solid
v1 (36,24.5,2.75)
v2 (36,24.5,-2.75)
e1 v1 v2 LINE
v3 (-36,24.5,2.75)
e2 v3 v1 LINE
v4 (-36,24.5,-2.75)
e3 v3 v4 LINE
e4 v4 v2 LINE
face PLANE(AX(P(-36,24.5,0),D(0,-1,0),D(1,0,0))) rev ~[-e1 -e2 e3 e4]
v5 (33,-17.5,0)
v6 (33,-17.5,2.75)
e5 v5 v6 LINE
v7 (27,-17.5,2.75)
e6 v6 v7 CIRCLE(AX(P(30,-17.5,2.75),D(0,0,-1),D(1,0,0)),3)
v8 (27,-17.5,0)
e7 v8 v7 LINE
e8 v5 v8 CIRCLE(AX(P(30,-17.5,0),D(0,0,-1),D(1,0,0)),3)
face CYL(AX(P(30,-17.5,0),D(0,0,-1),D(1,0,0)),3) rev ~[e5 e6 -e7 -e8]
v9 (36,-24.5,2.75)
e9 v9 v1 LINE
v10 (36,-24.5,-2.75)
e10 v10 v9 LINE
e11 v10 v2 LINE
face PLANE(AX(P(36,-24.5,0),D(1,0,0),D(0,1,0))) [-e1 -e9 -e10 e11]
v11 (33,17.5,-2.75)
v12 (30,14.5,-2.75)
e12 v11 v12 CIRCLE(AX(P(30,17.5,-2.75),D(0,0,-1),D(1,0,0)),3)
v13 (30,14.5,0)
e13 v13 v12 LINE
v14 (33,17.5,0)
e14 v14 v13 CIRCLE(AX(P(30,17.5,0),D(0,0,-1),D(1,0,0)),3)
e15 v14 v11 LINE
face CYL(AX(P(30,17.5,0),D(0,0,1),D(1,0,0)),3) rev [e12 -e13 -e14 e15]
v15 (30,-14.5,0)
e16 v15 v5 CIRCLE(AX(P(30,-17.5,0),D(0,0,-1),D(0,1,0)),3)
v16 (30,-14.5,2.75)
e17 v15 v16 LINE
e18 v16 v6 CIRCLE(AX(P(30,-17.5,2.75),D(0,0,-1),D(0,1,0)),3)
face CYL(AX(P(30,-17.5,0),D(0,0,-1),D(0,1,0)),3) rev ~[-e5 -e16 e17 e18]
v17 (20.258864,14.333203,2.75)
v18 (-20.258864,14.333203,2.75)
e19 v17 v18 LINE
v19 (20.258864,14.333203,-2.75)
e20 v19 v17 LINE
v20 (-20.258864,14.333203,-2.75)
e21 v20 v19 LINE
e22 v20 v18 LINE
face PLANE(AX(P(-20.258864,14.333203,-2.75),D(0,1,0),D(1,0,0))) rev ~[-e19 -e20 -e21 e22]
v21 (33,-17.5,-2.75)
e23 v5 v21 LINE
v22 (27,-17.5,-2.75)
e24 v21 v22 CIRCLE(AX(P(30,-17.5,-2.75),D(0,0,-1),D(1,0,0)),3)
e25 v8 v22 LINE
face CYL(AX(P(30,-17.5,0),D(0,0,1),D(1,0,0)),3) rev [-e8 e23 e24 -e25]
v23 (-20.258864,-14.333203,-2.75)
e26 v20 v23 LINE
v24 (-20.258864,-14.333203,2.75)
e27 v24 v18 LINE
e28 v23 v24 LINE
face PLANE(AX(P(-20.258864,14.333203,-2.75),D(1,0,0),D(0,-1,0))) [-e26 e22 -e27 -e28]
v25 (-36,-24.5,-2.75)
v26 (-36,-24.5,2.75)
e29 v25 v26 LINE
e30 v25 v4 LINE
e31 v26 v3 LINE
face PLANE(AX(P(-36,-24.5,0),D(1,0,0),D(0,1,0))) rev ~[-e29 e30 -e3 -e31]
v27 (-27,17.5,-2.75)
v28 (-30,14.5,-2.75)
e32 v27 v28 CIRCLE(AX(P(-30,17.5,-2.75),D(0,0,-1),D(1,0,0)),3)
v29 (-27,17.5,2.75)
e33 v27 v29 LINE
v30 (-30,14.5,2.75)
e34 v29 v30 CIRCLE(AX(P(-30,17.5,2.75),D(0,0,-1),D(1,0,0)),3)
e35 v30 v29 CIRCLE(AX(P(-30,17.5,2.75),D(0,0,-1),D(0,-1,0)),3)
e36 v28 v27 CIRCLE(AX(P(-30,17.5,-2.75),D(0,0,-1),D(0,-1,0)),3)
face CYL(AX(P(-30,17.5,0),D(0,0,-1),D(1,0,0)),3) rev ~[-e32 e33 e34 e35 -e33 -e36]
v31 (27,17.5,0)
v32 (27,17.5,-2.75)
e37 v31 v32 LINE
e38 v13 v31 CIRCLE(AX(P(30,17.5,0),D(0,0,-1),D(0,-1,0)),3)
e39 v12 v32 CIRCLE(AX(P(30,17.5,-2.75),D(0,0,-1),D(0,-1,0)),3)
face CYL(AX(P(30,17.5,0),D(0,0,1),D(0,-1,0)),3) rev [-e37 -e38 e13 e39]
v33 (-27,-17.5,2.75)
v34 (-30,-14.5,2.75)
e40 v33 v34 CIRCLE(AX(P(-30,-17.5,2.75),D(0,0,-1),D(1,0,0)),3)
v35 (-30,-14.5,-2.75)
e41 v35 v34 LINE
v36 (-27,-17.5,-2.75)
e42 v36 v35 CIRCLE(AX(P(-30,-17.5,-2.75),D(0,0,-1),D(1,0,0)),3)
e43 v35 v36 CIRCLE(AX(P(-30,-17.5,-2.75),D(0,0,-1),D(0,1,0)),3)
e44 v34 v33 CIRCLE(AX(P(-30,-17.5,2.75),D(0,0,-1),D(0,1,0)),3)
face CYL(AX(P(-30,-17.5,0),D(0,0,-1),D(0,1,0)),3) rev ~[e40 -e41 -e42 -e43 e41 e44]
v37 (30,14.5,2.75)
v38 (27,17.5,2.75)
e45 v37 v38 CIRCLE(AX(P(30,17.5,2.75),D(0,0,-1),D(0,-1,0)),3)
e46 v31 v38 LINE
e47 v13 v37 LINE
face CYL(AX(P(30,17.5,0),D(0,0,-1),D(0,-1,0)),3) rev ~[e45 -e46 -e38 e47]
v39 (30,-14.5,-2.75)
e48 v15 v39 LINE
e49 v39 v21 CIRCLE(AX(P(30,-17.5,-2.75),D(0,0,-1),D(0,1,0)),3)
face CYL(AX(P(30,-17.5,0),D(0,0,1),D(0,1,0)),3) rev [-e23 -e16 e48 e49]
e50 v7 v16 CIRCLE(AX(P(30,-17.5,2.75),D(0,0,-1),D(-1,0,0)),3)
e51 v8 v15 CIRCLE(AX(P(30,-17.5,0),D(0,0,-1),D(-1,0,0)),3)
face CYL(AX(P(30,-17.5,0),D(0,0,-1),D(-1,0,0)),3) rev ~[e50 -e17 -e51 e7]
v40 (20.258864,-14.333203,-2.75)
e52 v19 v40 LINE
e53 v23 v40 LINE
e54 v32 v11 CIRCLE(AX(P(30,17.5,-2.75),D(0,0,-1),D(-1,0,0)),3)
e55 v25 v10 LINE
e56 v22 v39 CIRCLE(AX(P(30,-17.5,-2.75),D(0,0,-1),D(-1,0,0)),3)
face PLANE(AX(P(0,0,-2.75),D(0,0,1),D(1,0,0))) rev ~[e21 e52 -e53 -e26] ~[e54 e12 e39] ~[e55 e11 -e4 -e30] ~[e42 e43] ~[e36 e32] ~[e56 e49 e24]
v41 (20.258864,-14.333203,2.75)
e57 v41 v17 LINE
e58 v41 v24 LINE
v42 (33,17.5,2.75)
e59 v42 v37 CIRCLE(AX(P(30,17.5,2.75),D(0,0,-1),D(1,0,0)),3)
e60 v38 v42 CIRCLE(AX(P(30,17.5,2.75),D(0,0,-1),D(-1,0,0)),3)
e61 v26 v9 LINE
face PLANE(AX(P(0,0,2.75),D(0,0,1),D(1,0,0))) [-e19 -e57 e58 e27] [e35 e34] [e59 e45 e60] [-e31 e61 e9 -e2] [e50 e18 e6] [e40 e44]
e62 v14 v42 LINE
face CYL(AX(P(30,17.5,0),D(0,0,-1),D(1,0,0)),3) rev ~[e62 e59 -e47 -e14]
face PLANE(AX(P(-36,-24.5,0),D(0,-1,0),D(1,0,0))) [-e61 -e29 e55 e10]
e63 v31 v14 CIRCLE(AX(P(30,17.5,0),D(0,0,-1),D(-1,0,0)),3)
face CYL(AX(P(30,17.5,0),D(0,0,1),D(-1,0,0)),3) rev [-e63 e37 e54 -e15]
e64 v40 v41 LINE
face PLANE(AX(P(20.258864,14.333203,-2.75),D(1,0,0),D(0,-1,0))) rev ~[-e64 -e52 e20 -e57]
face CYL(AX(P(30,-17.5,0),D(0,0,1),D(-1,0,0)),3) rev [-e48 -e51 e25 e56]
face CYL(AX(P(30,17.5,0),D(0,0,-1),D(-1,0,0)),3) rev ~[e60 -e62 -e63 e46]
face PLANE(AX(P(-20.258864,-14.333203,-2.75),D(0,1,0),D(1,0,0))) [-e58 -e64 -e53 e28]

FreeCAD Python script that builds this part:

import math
import FreeCAD as App
import Part
import Sketcher
from FreeCAD import Vector
Q = App.Units.Quantity

doc = App.newDocument("Part")
body = doc.addObject("PartDesign::Body", "Body")

# Sketch on XY plane
sketch1 = doc.addObject("Sketcher::SketchObject", "Sketch")
body.addObject(sketch1)
sketch1.AttachmentSupport = (doc.XY_Plane, [""])
sketch1.MapMode = "FlatFace"
sketch1.addGeometry([
    Part.LineSegment(Vector(-36, 24.5, 0), Vector(-36, -24.5, 0)),  # 0
    Part.LineSegment(Vector(-36, -24.5, 0), Vector(36, -24.5, 0)),  # 1
    Part.LineSegment(Vector(36, -24.5, 0), Vector(36, 24.5, 0)),  # 2
    Part.LineSegment(Vector(36, 24.5, 0), Vector(-36, 24.5, 0)),  # 3
    Part.ArcOfCircle(Part.Circle(Vector(30, -17.5, 0), Vector(0, 0, 1), 3), math.radians(180), math.radians(360)),  # 4
    Part.ArcOfCircle(Part.Circle(Vector(30, -17.5, 0), Vector(0, 0, 1), 3), math.radians(90), math.radians(180)),  # 5
    Part.ArcOfCircle(Part.Circle(Vector(30, -17.5, 0), Vector(0, 0, 1), 3), math.radians(0), math.radians(90)),  # 6
    Part.ArcOfCircle(Part.Circle(Vector(30, 17.5, 0), Vector(0, 0, 1), 3), math.radians(-90), math.radians(0)),  # 7
    Part.ArcOfCircle(Part.Circle(Vector(30, 17.5, 0), Vector(0, 0, 1), 3), math.radians(180), math.radians(270)),  # 8
    Part.ArcOfCircle(Part.Circle(Vector(30, 17.5, 0), Vector(0, 0, 1), 3), math.radians(0), math.radians(180)),  # 9
    Part.ArcOfCircle(Part.Circle(Vector(-30, 17.5, 0), Vector(0, 0, 1), 3), math.radians(0), math.radians(270)),  # 10
    Part.ArcOfCircle(Part.Circle(Vector(-30, 17.5, 0), Vector(0, 0, 1), 3), math.radians(-90), math.radians(0)),  # 11
    Part.ArcOfCircle(Part.Circle(Vector(-30, -17.5, 0), Vector(0, 0, 1), 3), math.radians(90), math.radians(360)),  # 12
    Part.ArcOfCircle(Part.Circle(Vector(-30, -17.5, 0), Vector(0, 0, 1), 3), math.radians(0), math.radians(90)),  # 13
], False)
sketch1.addConstraint([
    Sketcher.Constraint("Coincident", 0, 2, 1, 1),
    Sketcher.Constraint("Coincident", 1, 2, 2, 1),
    Sketcher.Constraint("Coincident", 2, 2, 3, 1),
    Sketcher.Constraint("Coincident", 3, 2, 0, 1),
    Sketcher.Constraint("Tangent", 4, 1, 5, 2),
    Sketcher.Constraint("Tangent", 5, 1, 6, 2),
    Sketcher.Constraint("Tangent", 6, 1, 4, 2),
    Sketcher.Constraint("Tangent", 7, 1, 8, 2),
    Sketcher.Constraint("Tangent", 8, 1, 9, 2),
    Sketcher.Constraint("Tangent", 9, 1, 7, 2),
    Sketcher.Constraint("Tangent", 10, 1, 11, 2),
    Sketcher.Constraint("Coincident", 11, 1, 10, 2),
    Sketcher.Constraint("Tangent", 12, 1, 13, 2),
    Sketcher.Constraint("Coincident", 13, 1, 12, 2),
    Sketcher.Constraint("Vertical", 0),
    Sketcher.Constraint("Horizontal", 1),
    Sketcher.Constraint("Vertical", 2),
    Sketcher.Constraint("Horizontal", 3),
    Sketcher.Constraint("Equal", 6, 7),
    Sketcher.Constraint("Equal", 9, 10),
    Sketcher.Constraint("Equal", 11, 12),
    Sketcher.Constraint("Symmetric", 4, 3, 10, 3, -1, 1),
    Sketcher.Constraint("Symmetric", 7, 3, 12, 3, -1, 1),
    Sketcher.Constraint("Symmetric", 0, 2, 2, 2, -1, 1),
    Sketcher.Constraint("Symmetric", 7, 3, 10, 3, -2),
    Sketcher.Constraint("Horizontal", 13, 3, 4, 1),
    Sketcher.Constraint("Horizontal", 4, 1, 6, 1),
    Sketcher.Constraint("Horizontal", 11, 3, 8, 1),
    Sketcher.Constraint("Horizontal", 8, 1, 9, 1),
    Sketcher.Constraint("Horizontal", 9, 1, 10, 1),
    Sketcher.Constraint("Horizontal", 6, 1, 13, 1),
    Sketcher.Constraint("Vertical", 9, 3, 5, 1),
    Sketcher.Constraint("Vertical", 5, 1, 7, 1),
    Sketcher.Constraint("Vertical", 13, 3, 11, 1),
    Sketcher.Constraint("Vertical", 11, 1, 12, 1),
    Sketcher.Constraint("Radius", 4, Q("3 mm")),
    Sketcher.Constraint("DistanceX", 1, 1, 1, 2, Q("72 mm")),
    Sketcher.Constraint("DistanceY", 0, 2, 0, 1, Q("49 mm")),
    Sketcher.Constraint("DistanceX", -1, 1, 4, 3, Q("30 mm")),
    Sketcher.Constraint("DistanceY", 4, 3, 7, 3, Q("35 mm")),
])
pad1 = doc.addObject("PartDesign::Pad", "Pad")
body.addObject(pad1)
pad1.Profile = sketch1
pad1.Length = 5.5
pad1.Midplane = True

# Sketch on XY plane
sketch2 = doc.addObject("Sketcher::SketchObject", "Sketch001")
body.addObject(sketch2)
sketch2.AttachmentSupport = (doc.XY_Plane, [""])
sketch2.MapMode = "FlatFace"
sketch2.AttachmentOffset = App.Placement(Vector(0, 0, -2.75), App.Rotation())
sketch2.addGeometry([
    Part.LineSegment(Vector(-20, -14, 0), Vector(-20, 14, 0)),
    Part.LineSegment(Vector(-20, 14, 0), Vector(20, 14, 0)),
    Part.LineSegment(Vector(20, 14, 0), Vector(20, -14, 0)),
    Part.LineSegment(Vector(20, -14, 0), Vector(-20, -14, 0)),
], False)
sketch2.addConstraint([
    Sketcher.Constraint("Coincident", 0, 2, 1, 1),
    Sketcher.Constraint("Coincident", 1, 2, 2, 1),
    Sketcher.Constraint("Coincident", 2, 2, 3, 1),
    Sketcher.Constraint("Coincident", 3, 2, 0, 1),
    Sketcher.Constraint("Vertical", 0),
    Sketcher.Constraint("Horizontal", 1),
    Sketcher.Constraint("Vertical", 2),
    Sketcher.Constraint("Horizontal", 3),
    Sketcher.Constraint("Symmetric", 0, 2, 2, 2, -1, 1),
    Sketcher.Constraint("DistanceX", 1, 1, 1, 2, Q("40.517729 mm")),
    Sketcher.Constraint("DistanceY", 0, 1, 0, 2, Q("28.666407 mm")),
])
pocket1 = doc.addObject("PartDesign::Pocket", "Pocket")
body.addObject(pocket1)
pocket1.Profile = sketch2
pocket1.Length = 25
pocket1.Reversed = True

doc.recompute()
